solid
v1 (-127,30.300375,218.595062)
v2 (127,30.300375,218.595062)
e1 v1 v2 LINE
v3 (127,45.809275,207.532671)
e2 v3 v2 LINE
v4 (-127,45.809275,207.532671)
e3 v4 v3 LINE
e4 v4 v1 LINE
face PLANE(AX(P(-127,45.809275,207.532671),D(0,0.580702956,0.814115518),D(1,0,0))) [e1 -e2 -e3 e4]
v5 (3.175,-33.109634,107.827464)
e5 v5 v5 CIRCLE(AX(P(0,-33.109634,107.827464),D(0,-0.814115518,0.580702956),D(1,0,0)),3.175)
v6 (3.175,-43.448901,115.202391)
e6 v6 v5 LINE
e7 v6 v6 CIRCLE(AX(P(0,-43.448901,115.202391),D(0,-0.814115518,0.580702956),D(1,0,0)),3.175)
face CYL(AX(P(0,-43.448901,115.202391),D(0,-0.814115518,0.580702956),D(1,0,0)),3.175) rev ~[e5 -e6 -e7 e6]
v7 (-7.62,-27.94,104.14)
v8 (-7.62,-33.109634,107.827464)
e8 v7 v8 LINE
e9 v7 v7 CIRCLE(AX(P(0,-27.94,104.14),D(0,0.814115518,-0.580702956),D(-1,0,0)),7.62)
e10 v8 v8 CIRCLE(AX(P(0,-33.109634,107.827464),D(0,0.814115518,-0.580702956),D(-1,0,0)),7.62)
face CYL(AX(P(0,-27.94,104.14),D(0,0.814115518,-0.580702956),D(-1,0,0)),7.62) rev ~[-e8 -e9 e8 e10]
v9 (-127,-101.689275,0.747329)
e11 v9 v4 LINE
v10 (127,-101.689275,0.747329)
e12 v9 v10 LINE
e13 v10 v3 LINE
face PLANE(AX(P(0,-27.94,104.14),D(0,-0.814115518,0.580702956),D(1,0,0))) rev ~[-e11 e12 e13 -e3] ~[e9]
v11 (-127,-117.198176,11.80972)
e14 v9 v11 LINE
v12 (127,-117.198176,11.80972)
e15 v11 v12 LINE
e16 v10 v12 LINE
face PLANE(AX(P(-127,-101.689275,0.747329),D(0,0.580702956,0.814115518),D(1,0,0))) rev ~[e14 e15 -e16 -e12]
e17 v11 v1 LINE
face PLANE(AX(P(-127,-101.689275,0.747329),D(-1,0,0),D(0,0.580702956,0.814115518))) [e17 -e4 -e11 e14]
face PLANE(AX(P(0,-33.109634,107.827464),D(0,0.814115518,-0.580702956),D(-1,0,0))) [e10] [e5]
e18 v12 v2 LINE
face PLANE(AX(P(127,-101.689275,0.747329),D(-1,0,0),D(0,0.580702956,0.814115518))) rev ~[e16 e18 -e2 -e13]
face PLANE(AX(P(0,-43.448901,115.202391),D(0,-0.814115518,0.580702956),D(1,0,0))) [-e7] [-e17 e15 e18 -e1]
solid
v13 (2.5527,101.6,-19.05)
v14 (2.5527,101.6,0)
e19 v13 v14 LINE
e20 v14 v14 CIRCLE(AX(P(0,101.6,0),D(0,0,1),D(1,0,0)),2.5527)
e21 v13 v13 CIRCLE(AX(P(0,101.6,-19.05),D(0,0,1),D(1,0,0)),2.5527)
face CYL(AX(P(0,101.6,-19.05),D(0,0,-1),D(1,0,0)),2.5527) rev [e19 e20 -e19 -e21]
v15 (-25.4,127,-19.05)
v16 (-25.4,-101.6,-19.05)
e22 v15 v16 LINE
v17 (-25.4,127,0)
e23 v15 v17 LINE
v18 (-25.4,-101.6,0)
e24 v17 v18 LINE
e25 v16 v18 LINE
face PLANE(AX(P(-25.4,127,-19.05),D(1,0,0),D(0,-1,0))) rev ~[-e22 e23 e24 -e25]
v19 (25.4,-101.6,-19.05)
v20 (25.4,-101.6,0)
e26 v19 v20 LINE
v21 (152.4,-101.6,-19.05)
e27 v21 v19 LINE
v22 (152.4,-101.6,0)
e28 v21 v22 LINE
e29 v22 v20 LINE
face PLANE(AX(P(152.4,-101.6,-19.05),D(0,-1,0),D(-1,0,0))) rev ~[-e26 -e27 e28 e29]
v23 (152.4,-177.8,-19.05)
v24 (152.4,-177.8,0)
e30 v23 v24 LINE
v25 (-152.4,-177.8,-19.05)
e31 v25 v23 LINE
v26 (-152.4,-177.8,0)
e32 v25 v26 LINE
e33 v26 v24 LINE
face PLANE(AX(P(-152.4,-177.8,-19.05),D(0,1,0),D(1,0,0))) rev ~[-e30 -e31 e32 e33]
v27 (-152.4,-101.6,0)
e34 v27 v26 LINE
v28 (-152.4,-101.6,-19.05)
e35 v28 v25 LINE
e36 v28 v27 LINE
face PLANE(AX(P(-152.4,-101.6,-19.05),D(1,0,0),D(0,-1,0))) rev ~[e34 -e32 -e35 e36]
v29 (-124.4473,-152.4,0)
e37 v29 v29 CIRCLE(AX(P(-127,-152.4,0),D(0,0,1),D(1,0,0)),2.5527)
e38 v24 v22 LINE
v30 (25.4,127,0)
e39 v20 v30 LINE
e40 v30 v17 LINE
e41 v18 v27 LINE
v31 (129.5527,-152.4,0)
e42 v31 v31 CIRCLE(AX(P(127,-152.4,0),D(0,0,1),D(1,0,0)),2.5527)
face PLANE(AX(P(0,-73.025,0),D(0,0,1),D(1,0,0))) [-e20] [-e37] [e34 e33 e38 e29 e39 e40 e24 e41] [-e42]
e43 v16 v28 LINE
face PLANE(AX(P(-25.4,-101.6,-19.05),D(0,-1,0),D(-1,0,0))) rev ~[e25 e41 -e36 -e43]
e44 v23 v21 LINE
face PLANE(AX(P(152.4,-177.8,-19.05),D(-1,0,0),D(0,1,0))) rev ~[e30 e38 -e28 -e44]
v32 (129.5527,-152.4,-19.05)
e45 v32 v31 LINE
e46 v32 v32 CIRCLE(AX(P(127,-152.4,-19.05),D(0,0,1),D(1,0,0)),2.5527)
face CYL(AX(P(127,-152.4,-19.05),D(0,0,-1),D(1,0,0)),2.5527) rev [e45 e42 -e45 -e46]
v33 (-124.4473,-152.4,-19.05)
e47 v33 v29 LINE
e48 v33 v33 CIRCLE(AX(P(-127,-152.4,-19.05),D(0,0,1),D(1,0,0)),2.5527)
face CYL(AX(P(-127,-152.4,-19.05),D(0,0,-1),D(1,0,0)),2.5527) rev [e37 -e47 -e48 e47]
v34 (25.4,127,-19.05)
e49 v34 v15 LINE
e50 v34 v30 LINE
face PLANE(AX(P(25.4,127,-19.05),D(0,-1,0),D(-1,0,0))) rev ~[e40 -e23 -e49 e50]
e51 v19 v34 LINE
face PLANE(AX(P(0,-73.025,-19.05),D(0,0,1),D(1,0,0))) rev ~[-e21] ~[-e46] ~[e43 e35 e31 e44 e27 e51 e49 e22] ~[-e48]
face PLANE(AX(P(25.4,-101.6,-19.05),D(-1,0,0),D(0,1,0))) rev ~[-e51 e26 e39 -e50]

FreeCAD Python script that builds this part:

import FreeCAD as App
import Part
import Sketcher

V = App.Vector
Q = App.Units.Quantity

doc = App.newDocument("Part")
body = doc.addObject("PartDesign::Body", "Body")

sketch1 = doc.addObject("Sketcher::SketchObject", "Sketch")
body.addObject(sketch1)
sketch1.Placement = App.Placement(V(0, -27.94, 104.14), App.Rotation(V(1, 0, 0), V(0, 0.580702956, 0.814115518), V(0, -0.814115518, 0.580702956), "ZXY"))
sketch1.addGeometry(Part.LineSegment(V(-127, 127, 0), V(-127, -127, 0)), False)
sketch1.addGeometry(Part.LineSegment(V(-127, -127, 0), V(127, -127, 0)), False)
sketch1.addGeometry(Part.LineSegment(V(127, -127, 0), V(127, 127, 0)), False)
sketch1.addGeometry(Part.LineSegment(V(127, 127, 0), V(-127, 127, 0)), False)
sketch1.addConstraint(Sketcher.Constraint("Coincident", 0, 2, 1, 1))
sketch1.addConstraint(Sketcher.Constraint("Coincident", 1, 2, 2, 1))
sketch1.addConstraint(Sketcher.Constraint("Coincident", 2, 2, 3, 1))
sketch1.addConstraint(Sketcher.Constraint("Coincident", 3, 2, 0, 1))
sketch1.addConstraint(Sketcher.Constraint("Vertical", 0))
sketch1.addConstraint(Sketcher.Constraint("Horizontal", 1))
sketch1.addConstraint(Sketcher.Constraint("Vertical", 2))
sketch1.addConstraint(Sketcher.Constraint("Horizontal", 3))
sketch1.addConstraint(Sketcher.Constraint("Symmetric", 0, 2, 2, 2, -1, 1))
sketch1.addConstraint(Sketcher.Constraint("Equal", 3, 0))
sketch1.addConstraint(Sketcher.Constraint("DistanceX", 1, 1, 1, 2, Q("10 in")))
pad1 = doc.addObject("PartDesign::Pad", "Pad")
body.addObject(pad1)
pad1.Profile = sketch1
pad1.Length = Q("0.75 in")

sketch2 = doc.addObject("Sketcher::SketchObject", "Sketch001")
body.addObject(sketch2)
sketch2.Placement = App.Placement(V(0, -83.26024, 59.388952), App.Rotation(V(1, 0, 0), V(0, 0.580702956, 0.814115518), V(0, -0.814115518, 0.580702956), "ZXY"))
sketch2.addGeometry(Part.Circle(V(0, 68.6, 0), V(0, 0, 1), 3.2), False)
sketch2.addConstraint(Sketcher.Constraint("PointOnObject", 0, 3, -2))
sketch2.addConstraint(Sketcher.Constraint("Diameter", 0, Q("0.25 in")))
sketch2.addConstraint(Sketcher.Constraint("DistanceY", -1, 1, 0, 3, 68.557149))
pocket1 = doc.addObject("PartDesign::Pocket", "Pocket")
body.addObject(pocket1)
pocket1.Profile = sketch2
pocket1.Type = "ThroughAll"

sketch3 = doc.addObject("Sketcher::SketchObject", "Sketch002")
body.addObject(sketch3)
sketch3.Placement = App.Placement(V(0, -67.751339, 48.326561), App.Rotation(V(-1, 0, 0), V(0, 0.580702956, 0.814115518), V(0, 0.814115518, -0.580702956), "ZXY"))
sketch3.addGeometry(Part.Circle(V(0, 69, 0), V(0, 0, 1), 8), False)
sketch3.addConstraint(Sketcher.Constraint("PointOnObject", 0, 3, -2))
sketch3.addConstraint(Sketcher.Constraint("Diameter", 0, Q("0.6 in")))
sketch3.addConstraint(Sketcher.Constraint("DistanceY", -1, 1, 0, 3, 68.557149))
pocket2 = doc.addObject("PartDesign::Pocket", "Pocket001")
body.addObject(pocket2)
pocket2.Profile = sketch3
pocket2.Length = Q("0.25 in")
body2 = doc.addObject("PartDesign::Body", "Body001")

sketch4 = doc.addObject("Sketcher::SketchObject", "Sketch003")
body2.addObject(sketch4)
sketch4.AttachmentSupport = (doc.getObject("XY_Plane001"), [""])
sketch4.MapMode = "FlatFace"
sketch4.AttachmentOffset = App.Placement(V(0, 0, -0.75 * 25.4), App.Rotation())
sketch4.addGeometry(Part.LineSegment(V(-152.4, -177.8, 0), V(152.4, -177.8, 0)), False)
sketch4.addGeometry(Part.LineSegment(V(152.4, -177.8, 0), V(152.4, -101.6, 0)), False)
sketch4.addGeometry(Part.LineSegment(V(152.4, -101.6, 0), V(25.4, -101.6, 0)), False)
sketch4.addGeometry(Part.LineSegment(V(25.4, -101.6, 0), V(25.4, 127, 0)), False)
sketch4.addGeometry(Part.LineSegment(V(25.4, 127, 0), V(-25.4, 127, 0)), False)
sketch4.addGeometry(Part.LineSegment(V(-25.4, 127, 0), V(-25.4, -101.6, 0)), False)
sketch4.addGeometry(Part.LineSegment(V(-25.4, -101.6, 0), V(-152.4, -101.6, 0)), False)
sketch4.addGeometry(Part.LineSegment(V(-152.4, -101.6, 0), V(-152.4, -177.8, 0)), False)
sketch4.addGeometry(Part.Circle(V(-127, -152.4, 0), V(0, 0, 1), 2.6), False)
sketch4.addGeometry(Part.Circle(V(127, -152.4, 0), V(0, 0, 1), 2.6), False)
sketch4.addGeometry(Part.Circle(V(0, 101.6, 0), V(0, 0, 1), 2.6), False)
sketch4.addConstraint(Sketcher.Constraint("Coincident", 0, 2, 1, 1))
sketch4.addConstraint(Sketcher.Constraint("Coincident", 1, 2, 2, 1))
sketch4.addConstraint(Sketcher.Constraint("Coincident", 2, 2, 3, 1))
sketch4.addConstraint(Sketcher.Constraint("Coincident", 3, 2, 4, 1))
sketch4.addConstraint(Sketcher.Constraint("Coincident", 4, 2, 5, 1))
sketch4.addConstraint(Sketcher.Constraint("Coincident", 5, 2, 6, 1))
sketch4.addConstraint(Sketcher.Constraint("Coincident", 6, 2, 7, 1))
sketch4.addConstraint(Sketcher.Constraint("Coincident", 7, 2, 0, 1))
sketch4.addConstraint(Sketcher.Constraint("Horizontal", 0))
sketch4.addConstraint(Sketcher.Constraint("Vertical", 1))
sketch4.addConstraint(Sketcher.Constraint("Horizontal", 2))
sketch4.addConstraint(Sketcher.Constraint("Vertical", 3))
sketch4.addConstraint(Sketcher.Constraint("Horizontal", 4))
sketch4.addConstraint(Sketcher.Constraint("Vertical", 5))
sketch4.addConstraint(Sketcher.Constraint("Horizontal", 6))
sketch4.addConstraint(Sketcher.Constraint("Vertical", 7))
sketch4.addConstraint(Sketcher.Constraint("Equal", 8, 9))
sketch4.addConstraint(Sketcher.Constraint("Equal", 9, 10))
sketch4.addConstraint(Sketcher.Constraint("Symmetric", 8, 3, 9, 3, -2))
sketch4.addConstraint(Sketcher.Constraint("Symmetric", 2, 2, 5, 2, -2))
sketch4.addConstraint(Sketcher.Constraint("PointOnObject", 10, 3, -2))
sketch4.addConstraint(Sketcher.Constraint("Equal", 2, 6))
sketch4.addConstraint(Sketcher.Constraint("DistanceX", 0, 1, 0, 2, Q("12 in")))
sketch4.addConstraint(Sketcher.Constraint("DistanceX", 2, 2, 2, 1, Q("5 in")))
sketch4.addConstraint(Sketcher.Constraint("DistanceY", 1, 1, 1, 2, Q("3 in")))
sketch4.addConstraint(Sketcher.Constraint("DistanceY", 3, 1, 3, 2, Q("9 in")))
sketch4.addConstraint(Sketcher.Constraint("Diameter", 8, Q("0.201 in")))
sketch4.addConstraint(Sketcher.Constraint("DistanceX", 8, 3, -1, 1, Q("5 in")))
sketch4.addConstraint(Sketcher.Constraint("DistanceY", 8, 3, -1, 1, Q("6 in")))
sketch4.addConstraint(Sketcher.Constraint("DistanceY", -1, 1, 10, 3, Q("4 in")))
sketch4.addConstraint(Sketcher.Constraint("DistanceY", 0, 2, -1, 1, Q("7 in")))
pad2 = doc.addObject("PartDesign::Pad", "Pad001")
body2.addObject(pad2)
pad2.Profile = sketch4
pad2.Length = Q("0.75 in")

doc.recompute()
